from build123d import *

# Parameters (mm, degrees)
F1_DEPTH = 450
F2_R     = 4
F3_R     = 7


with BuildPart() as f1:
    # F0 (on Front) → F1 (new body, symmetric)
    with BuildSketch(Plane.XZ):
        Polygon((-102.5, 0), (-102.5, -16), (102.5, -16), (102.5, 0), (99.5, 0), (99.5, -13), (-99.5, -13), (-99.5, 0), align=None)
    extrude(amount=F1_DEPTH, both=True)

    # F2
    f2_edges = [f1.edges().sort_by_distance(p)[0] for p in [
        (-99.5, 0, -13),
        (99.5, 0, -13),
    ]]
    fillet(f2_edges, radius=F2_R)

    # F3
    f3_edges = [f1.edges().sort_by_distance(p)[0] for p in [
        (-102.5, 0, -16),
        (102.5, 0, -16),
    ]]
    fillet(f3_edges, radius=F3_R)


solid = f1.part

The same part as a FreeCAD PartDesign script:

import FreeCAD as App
import Part
import Sketcher
Q = App.Units.Quantity


def edges_at(feature, points):
    """Names of the edges that pass closest to the given points."""
    edges = feature.Shape.Edges
    near = lambda p: min(range(len(edges)), key=lambda i: edges[i].distToShape(Part.Vertex(*p))[0])
    return sorted({f"Edge{near(p) + 1}" for p in points})


def add_polygon(sketch, points):
    """Adds a closed chain of lines whose ends are joined by coincident constraints."""
    first, n = sketch.GeometryCount, len(points)
    for a, b in zip(points, points[1:] + points[:1]):
        sketch.addGeometry(Part.LineSegment(App.Vector(*a, 0), App.Vector(*b, 0)), False)
    for i in range(n):
        sketch.addConstraint(Sketcher.Constraint("Coincident", first + i, 2, first + (i + 1) % n, 1))

doc = App.newDocument("Part")
params = doc.addObject("Spreadsheet::Sheet", "Params")
for row, (alias, value) in enumerate([
    ("sketch1_width", "205 mm"),
    ("sketch1_width2", "3 mm"),
    ("sketch1_height", "16 mm"),
    ("sketch1_height2", "13 mm"),
    ("pad1_length", "900 mm"),
    ("fillet_radius", "4 mm"),
    ("fillet2_radius", "7 mm"),
], start=1):
    params.set(f"A{row}", alias)
    params.set(f"B{row}", "=" + value)
    params.setAlias(f"B{row}", alias)

body = doc.addObject("PartDesign::Body", "Body")

sketch1 = body.newObject("Sketcher::SketchObject", "Sketch")
sketch1.AttachmentSupport = (doc.getObject("XZ_Plane"), [""])
sketch1.MapMode = "FlatFace"
add_polygon(sketch1, [(-102.5, 0), (-102.5, -16), (102.5, -16), (102.5, 0), (99.5, 0), (99.5, -13), (-99.5, -13), (-99.5, 0)])
sketch1.addConstraint([
    Sketcher.Constraint("Vertical", 0),
    Sketcher.Constraint("Horizontal", 1),
    Sketcher.Constraint("Vertical", 2),
    Sketcher.Constraint("Horizontal", 3),
    Sketcher.Constraint("Vertical", 4),
    Sketcher.Constraint("Horizontal", 5),
    Sketcher.Constraint("Vertical", 6),
    Sketcher.Constraint("Horizontal", 7),
    Sketcher.Constraint("Symmetric", 3, 2, 6, 2, -1, 1),
    Sketcher.Constraint("Symmetric", 2, 2, 7, 2, -2),
    Sketcher.Constraint("DistanceX", 1, 1, 1, 2, Q("205 mm")),
    Sketcher.Constraint("DistanceX", 3, 2, 3, 1, Q("3 mm")),
    Sketcher.Constraint("DistanceY", 0, 2, 0, 1, Q("16 mm")),
    Sketcher.Constraint("DistanceY", 4, 2, 4, 1, Q("13 mm")),
])
sketch1.setExpression("Constraints[18]", "Params.sketch1_width")
sketch1.setExpression("Constraints[19]", "Params.sketch1_width2")
sketch1.setExpression("Constraints[20]", "Params.sketch1_height")
sketch1.setExpression("Constraints[21]", "Params.sketch1_height2")
pad1 = body.newObject("PartDesign::Pad", "Pad")
pad1.Profile = sketch1
pad1.setExpression("Length", "Params.pad1_length")
pad1.Midplane = True
doc.recompute()

fillet = body.newObject("PartDesign::Fillet", "Fillet")
fillet.Base = (pad1, edges_at(pad1, [(-99.5, 0, -13), (99.5, 0, -13)]))
fillet.setExpression("Radius", "Params.fillet_radius")
doc.recompute()

fillet2 = body.newObject("PartDesign::Fillet", "Fillet001")
fillet2.Base = (fillet, edges_at(fillet, [(-102.5, 0, -16), (102.5, 0, -16)]))
fillet2.setExpression("Radius", "Params.fillet2_radius")

doc.recompute()
